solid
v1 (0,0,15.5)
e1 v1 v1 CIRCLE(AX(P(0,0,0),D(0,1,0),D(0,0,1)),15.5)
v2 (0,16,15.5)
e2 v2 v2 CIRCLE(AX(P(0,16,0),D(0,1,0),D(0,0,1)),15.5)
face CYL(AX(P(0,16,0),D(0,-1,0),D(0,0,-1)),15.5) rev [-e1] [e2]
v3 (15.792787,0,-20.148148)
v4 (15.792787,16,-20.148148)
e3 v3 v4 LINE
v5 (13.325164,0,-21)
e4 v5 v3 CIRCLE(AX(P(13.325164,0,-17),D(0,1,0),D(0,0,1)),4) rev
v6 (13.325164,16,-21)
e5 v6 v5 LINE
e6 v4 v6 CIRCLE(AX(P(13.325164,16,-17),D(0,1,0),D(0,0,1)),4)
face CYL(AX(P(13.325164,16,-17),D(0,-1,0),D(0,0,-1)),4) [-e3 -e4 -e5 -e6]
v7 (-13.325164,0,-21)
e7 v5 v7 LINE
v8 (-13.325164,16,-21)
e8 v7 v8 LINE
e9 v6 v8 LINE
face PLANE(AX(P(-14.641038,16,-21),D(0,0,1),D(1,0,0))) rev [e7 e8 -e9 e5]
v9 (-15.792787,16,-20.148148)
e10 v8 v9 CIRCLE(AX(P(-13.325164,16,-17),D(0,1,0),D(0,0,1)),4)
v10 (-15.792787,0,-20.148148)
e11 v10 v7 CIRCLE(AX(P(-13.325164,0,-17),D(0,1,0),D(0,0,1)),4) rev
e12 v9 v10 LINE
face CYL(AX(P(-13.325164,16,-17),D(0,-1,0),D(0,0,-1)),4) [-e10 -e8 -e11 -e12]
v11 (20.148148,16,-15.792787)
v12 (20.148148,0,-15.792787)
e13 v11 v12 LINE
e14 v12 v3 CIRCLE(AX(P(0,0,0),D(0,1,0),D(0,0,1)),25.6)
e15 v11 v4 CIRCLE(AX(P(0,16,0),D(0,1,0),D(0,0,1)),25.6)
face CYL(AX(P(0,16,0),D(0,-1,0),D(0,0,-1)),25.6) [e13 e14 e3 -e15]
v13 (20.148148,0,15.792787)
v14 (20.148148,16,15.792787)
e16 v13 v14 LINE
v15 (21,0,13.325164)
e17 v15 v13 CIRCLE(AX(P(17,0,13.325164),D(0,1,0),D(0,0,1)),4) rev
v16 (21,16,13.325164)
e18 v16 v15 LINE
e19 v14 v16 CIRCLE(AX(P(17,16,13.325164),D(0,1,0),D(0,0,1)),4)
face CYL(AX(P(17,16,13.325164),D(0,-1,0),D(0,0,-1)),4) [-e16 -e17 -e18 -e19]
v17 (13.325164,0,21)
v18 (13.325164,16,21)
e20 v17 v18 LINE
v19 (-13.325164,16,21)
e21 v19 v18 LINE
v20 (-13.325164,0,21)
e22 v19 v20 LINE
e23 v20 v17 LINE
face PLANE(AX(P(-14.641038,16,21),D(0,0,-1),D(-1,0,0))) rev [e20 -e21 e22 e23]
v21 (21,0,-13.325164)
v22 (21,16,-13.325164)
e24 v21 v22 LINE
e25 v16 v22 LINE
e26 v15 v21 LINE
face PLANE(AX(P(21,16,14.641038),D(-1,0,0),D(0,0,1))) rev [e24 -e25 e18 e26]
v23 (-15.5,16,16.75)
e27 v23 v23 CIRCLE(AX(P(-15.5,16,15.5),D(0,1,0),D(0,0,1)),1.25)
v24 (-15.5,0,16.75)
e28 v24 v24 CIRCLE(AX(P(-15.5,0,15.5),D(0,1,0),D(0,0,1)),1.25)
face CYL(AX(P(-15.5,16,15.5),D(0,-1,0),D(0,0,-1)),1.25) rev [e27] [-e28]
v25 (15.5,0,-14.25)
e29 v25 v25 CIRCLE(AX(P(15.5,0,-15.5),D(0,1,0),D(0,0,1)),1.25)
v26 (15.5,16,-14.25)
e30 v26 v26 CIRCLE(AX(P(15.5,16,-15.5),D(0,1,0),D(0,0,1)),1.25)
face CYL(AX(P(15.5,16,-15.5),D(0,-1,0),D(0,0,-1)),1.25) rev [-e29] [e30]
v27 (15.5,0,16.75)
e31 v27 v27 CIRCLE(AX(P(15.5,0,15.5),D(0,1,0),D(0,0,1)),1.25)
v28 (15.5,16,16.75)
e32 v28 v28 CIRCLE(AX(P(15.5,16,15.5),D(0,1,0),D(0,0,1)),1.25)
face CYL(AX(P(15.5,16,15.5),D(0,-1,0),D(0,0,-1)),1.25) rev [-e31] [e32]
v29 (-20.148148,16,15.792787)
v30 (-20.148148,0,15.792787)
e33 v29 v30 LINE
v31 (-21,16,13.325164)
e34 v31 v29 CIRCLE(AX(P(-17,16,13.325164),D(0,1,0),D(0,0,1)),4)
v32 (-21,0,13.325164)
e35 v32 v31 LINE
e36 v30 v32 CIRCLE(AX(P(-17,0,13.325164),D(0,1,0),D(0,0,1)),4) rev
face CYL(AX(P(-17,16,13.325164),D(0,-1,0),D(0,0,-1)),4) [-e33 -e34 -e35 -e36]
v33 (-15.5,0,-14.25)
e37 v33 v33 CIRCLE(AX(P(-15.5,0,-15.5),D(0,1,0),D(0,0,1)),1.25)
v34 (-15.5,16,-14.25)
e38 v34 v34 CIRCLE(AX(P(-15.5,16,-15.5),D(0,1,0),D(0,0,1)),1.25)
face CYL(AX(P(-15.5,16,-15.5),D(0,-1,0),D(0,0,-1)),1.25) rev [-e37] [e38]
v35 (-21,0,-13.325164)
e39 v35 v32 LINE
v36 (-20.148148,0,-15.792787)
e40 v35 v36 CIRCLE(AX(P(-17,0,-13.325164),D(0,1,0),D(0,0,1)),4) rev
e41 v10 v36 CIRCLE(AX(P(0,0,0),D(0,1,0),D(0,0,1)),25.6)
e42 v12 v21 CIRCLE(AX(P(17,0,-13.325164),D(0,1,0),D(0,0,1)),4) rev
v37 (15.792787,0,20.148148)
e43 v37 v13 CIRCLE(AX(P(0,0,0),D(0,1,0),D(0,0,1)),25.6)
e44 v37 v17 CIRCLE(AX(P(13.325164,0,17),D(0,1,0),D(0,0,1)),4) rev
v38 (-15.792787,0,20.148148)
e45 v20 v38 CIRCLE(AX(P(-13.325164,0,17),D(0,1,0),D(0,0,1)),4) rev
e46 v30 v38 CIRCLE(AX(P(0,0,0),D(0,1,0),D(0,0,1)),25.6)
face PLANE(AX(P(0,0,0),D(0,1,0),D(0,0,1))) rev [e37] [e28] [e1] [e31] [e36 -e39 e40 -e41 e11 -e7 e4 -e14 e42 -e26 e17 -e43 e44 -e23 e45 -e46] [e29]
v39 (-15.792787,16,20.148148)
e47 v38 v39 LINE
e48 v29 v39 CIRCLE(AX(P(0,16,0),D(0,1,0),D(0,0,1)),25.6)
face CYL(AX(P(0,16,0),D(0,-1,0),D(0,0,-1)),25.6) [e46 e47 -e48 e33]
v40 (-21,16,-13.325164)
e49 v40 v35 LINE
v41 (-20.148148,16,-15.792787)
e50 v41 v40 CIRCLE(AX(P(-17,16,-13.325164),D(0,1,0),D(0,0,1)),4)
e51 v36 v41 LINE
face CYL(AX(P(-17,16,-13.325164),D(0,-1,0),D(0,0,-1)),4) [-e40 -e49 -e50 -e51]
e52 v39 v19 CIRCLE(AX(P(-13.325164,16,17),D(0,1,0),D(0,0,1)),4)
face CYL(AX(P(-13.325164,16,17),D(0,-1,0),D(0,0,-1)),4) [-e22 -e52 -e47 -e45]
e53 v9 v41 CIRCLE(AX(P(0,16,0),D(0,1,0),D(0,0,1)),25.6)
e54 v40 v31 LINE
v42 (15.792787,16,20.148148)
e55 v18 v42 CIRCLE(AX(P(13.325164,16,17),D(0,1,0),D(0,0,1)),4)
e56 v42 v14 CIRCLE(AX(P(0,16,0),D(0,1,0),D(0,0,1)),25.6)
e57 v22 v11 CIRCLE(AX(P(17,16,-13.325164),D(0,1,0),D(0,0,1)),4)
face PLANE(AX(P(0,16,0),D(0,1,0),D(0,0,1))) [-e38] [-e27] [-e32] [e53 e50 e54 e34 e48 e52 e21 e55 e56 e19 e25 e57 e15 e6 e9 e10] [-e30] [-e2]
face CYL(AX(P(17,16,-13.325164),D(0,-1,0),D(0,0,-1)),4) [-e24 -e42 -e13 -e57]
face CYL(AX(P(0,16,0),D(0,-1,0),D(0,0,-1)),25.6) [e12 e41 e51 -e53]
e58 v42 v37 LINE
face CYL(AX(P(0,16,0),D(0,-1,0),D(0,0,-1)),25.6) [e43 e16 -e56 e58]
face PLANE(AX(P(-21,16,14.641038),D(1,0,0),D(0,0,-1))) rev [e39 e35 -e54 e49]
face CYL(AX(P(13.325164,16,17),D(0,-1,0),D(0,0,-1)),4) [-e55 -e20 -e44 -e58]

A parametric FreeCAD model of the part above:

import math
import FreeCAD as App
import Part
import Sketcher
Q = App.Units.Quantity


def edges_at(feature, points):
    """Names of the edges that pass closest to the given points."""
    edges = feature.Shape.Edges
    near = lambda p: min(range(len(edges)), key=lambda i: edges[i].distToShape(Part.Vertex(*p))[0])
    return sorted({f"Edge{near(p) + 1}" for p in points})

doc = App.newDocument("Part")
body = doc.addObject("PartDesign::Body", "Body")

# Sketch on XZ plane
sketch1 = doc.addObject("Sketcher::SketchObject", "Sketch")
body.addObject(sketch1)
sketch1.AttachmentSupport = (doc.XZ_Plane, [""])
sketch1.MapMode = "FlatFace"
sketch1.addGeometry([
    Part.LineSegment(App.Vector(-14.641038, 21, 0), App.Vector(14.641038, 21, 0)),  # 0
    Part.ArcOfCircle(Part.Circle(App.Vector(0, 0, 0), App.Vector(0, 0, 1), 25.6), math.radians(34.883912), math.radians(55.116088)),  # 1
    Part.LineSegment(App.Vector(21, 14.641038, 0), App.Vector(21, -14.641038, 0)),  # 2
    Part.ArcOfCircle(Part.Circle(App.Vector(0, 0, 0), App.Vector(0, 0, 1), 25.6), math.radians(-55.116088), math.radians(-34.883912)),  # 3
    Part.LineSegment(App.Vector(14.641038, -21, 0), App.Vector(-14.641038, -21, 0)),  # 4
    Part.ArcOfCircle(Part.Circle(App.Vector(0, 0, 0), App.Vector(0, 0, 1), 25.6), math.radians(-145.116088), math.radians(-124.883912)),  # 5
    Part.LineSegment(App.Vector(-21, -14.641038, 0), App.Vector(-21, 14.641038, 0)),  # 6
    Part.ArcOfCircle(Part.Circle(App.Vector(0, 0, 0), App.Vector(0, 0, 1), 25.6), math.radians(124.883912), math.radians(145.116088)),  # 7
    Part.Circle(App.Vector(-15.5, 15.5, 0), App.Vector(0, 0, 1), 1.25),  # 8
    Part.Circle(App.Vector(15.5, 15.5, 0), App.Vector(0, 0, 1), 1.25),  # 9
    Part.Circle(App.Vector(-15.5, -15.5, 0), App.Vector(0, 0, 1), 1.25),  # 10
    Part.Circle(App.Vector(0, 0, 0), App.Vector(0, 0, 1), 15.5),  # 11
    Part.Circle(App.Vector(15.5, -15.5, 0), App.Vector(0, 0, 1), 1.25),  # 12
], False)
sketch1.addConstraint([
    Sketcher.Constraint("Coincident", 0, 2, 1, 2),
    Sketcher.Constraint("Coincident", 1, 1, 2, 1),
    Sketcher.Constraint("Coincident", 2, 2, 3, 2),
    Sketcher.Constraint("Coincident", 3, 1, 4, 1),
    Sketcher.Constraint("Coincident", 4, 2, 5, 2),
    Sketcher.Constraint("Coincident", 5, 1, 6, 1),
    Sketcher.Constraint("Coincident", 6, 2, 7, 2),
    Sketcher.Constraint("Coincident", 7, 1, 0, 1),
    Sketcher.Constraint("Horizontal", 0),
    Sketcher.Constraint("Vertical", 2),
    Sketcher.Constraint("Horizontal", 4),
    Sketcher.Constraint("Vertical", 6),
    Sketcher.Constraint("Coincident", 1, 3, -1, 1),
    Sketcher.Constraint("Coincident", 3, 3, -1, 1),
    Sketcher.Constraint("Coincident", 5, 3, -1, 1),
    Sketcher.Constraint("Coincident", 7, 3, -1, 1),
    Sketcher.Constraint("Coincident", 11, 3, -1, 1),
    Sketcher.Constraint("Equal", 1, 3),
    Sketcher.Constraint("Equal", 3, 5),
    Sketcher.Constraint("Equal", 5, 7),
    Sketcher.Constraint("Equal", 8, 9),
    Sketcher.Constraint("Equal", 9, 10),
    Sketcher.Constraint("Equal", 10, 12),
    Sketcher.Constraint("Symmetric", 9, 3, 10, 3, -1, 1),
    Sketcher.Constraint("Symmetric", 8, 3, 12, 3, -1, 1),
    Sketcher.Constraint("Symmetric", 8, 3, 9, 3, -2),
    Sketcher.Constraint("Horizontal", 2, 2, 5, 1),
    Sketcher.Constraint("Vertical", 0, 2, 3, 1),
    Sketcher.Constraint("Equal", 4, 2),
    Sketcher.Constraint("Diameter", 11, Q("31 mm")),
    Sketcher.Constraint("Diameter", 8, Q("2.5 mm")),
    Sketcher.Constraint("Radius", 1, Q("25.6 mm")),
    Sketcher.Constraint("DistanceY", -1, 1, 0, 2, Q("21 mm")),
    Sketcher.Constraint("DistanceX", 8, 3, 9, 3, Q("31 mm")),
    Sketcher.Constraint("DistanceY", 10, 3, 8, 3, Q("31 mm")),
])
pad1 = doc.addObject("PartDesign::Pad", "Pad")
body.addObject(pad1)
pad1.Profile = sketch1
pad1.Length = 16
pad1.Reversed = True
doc.recompute()

fillet = doc.addObject("PartDesign::Fillet", "Fillet")
body.addObject(fillet)
fillet.Base = (pad1, edges_at(pad1, [
    (21, 8, -14.641),
    (21, 8, 14.641),
    (14.641, 8, 21),
    (-14.641, 8, 21),
    (-21, 8, 14.641),
    (-21, 8, -14.641),
    (-14.641, 8, -21),
    (14.641, 8, -21),
]))
fillet.Radius = 4

doc.recompute()
